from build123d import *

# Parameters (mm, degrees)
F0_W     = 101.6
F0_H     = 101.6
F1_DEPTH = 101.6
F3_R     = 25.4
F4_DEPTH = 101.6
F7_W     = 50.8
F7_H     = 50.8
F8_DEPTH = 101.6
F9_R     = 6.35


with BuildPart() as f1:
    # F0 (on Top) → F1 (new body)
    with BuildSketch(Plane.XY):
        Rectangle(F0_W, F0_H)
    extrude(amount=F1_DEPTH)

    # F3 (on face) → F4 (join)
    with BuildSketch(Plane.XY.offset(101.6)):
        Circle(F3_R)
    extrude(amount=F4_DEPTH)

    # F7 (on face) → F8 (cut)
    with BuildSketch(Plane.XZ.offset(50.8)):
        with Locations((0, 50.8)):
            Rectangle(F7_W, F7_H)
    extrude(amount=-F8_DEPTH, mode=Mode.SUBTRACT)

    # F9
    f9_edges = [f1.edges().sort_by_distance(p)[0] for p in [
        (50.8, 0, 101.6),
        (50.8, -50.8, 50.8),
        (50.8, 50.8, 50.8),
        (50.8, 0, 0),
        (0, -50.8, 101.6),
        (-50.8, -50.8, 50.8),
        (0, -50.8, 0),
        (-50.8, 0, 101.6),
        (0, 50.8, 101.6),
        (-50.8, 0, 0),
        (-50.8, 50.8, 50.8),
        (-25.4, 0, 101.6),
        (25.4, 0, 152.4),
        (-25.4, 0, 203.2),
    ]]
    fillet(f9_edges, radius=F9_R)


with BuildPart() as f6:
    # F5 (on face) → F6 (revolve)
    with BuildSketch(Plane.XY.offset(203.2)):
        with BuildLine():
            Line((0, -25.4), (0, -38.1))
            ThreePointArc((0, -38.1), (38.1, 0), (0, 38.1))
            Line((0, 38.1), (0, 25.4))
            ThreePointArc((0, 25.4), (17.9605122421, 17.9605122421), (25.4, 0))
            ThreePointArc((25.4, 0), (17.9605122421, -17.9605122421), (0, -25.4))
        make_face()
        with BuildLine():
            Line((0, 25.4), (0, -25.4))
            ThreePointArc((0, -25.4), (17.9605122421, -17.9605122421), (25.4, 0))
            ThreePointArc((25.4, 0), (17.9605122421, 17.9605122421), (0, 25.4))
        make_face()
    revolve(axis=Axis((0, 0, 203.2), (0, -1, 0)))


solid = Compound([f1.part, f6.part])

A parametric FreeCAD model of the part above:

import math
import FreeCAD as App
import Part
import Sketcher

V = App.Vector
Q = App.Units.Quantity


def edges_at(feature, points):
    """Names of the edges that pass closest to the given points."""
    edges = feature.Shape.Edges
    near = lambda p: min(range(len(edges)), key=lambda i: edges[i].distToShape(Part.Vertex(*p))[0])
    return sorted({f"Edge{near(p) + 1}" for p in points})


def add_polygon(sketch, points):
    """Adds a closed chain of lines whose ends are joined by coincident constraints."""
    first, n = sketch.GeometryCount, len(points)
    for a, b in zip(points, points[1:] + points[:1]):
        sketch.addGeometry(Part.LineSegment(App.Vector(*a, 0), App.Vector(*b, 0)), False)
    for i in range(n):
        sketch.addConstraint(Sketcher.Constraint("Coincident", first + i, 2, first + (i + 1) % n, 1))

doc = App.newDocument("Part")
body = doc.addObject("PartDesign::Body", "Body")

# Sketch on XY plane
sketch1 = doc.addObject("Sketcher::SketchObject", "Sketch")
body.addObject(sketch1)
sketch1.AttachmentSupport = (doc.XY_Plane, [""])
sketch1.MapMode = "FlatFace"
add_polygon(sketch1, [(-51, 51), (-51, -51), (51, -51), (51, 51)])  # lines 0-3
sketch1.addConstraint([
    Sketcher.Constraint("Vertical", 0),
    Sketcher.Constraint("Horizontal", 1),
    Sketcher.Constraint("Vertical", 2),
    Sketcher.Constraint("Horizontal", 3),
    Sketcher.Constraint("Symmetric", 0, 2, 2, 2, -1, 1),
    Sketcher.Constraint("Equal", 3, 0),
    Sketcher.Constraint("DistanceX", 1, 1, 1, 2, Q("4 in")),
])
pad1 = doc.addObject("PartDesign::Pad", "Pad")
body.addObject(pad1)
pad1.Profile = sketch1
pad1.Length = Q("4 in")

# Sketch on XY plane
sketch2 = doc.addObject("Sketcher::SketchObject", "Sketch001")
body.addObject(sketch2)
sketch2.AttachmentSupport = (doc.XY_Plane, [""])
sketch2.MapMode = "FlatFace"
sketch2.AttachmentOffset = App.Placement(V(0, 0, 4 * 25.4), App.Rotation())
sketch2.addGeometry(Part.Circle(V(0, 0, 0), V(0, 0, 1), 25), False)
sketch2.addConstraint([
    Sketcher.Constraint("Coincident", 0, 3, -1, 1),
    Sketcher.Constraint("Diameter", 0, Q("2 in")),
])
pad2 = doc.addObject("PartDesign::Pad", "Pad001")
body.addObject(pad2)
pad2.Profile = sketch2
pad2.Length = Q("4 in")

# Sketch on XZ plane
sketch3 = doc.addObject("Sketcher::SketchObject", "Sketch002")
body.addObject(sketch3)
sketch3.AttachmentSupport = (doc.XZ_Plane, [""])
sketch3.MapMode = "FlatFace"
sketch3.AttachmentOffset = App.Placement(V(0, 0, 2 * 25.4), App.Rotation())
add_polygon(sketch3, [(-25, 76), (-25, 25), (25, 25), (25, 76)])  # lines 0-3
sketch3.addConstraint([
    Sketcher.Constraint("Vertical", 0),
    Sketcher.Constraint("Horizontal", 1),
    Sketcher.Constraint("Vertical", 2),
    Sketcher.Constraint("Horizontal", 3),
    Sketcher.Constraint("Equal", 3, 0),
    Sketcher.Constraint("DistanceX", 1, 1, 1, 2, Q("2 in")),
    Sketcher.Constraint("DistanceX", 0, 2, -1, 1, Q("1 in")),
    Sketcher.Constraint("DistanceY", -1, 1, 0, 2, Q("1 in")),
])
pocket1 = doc.addObject("PartDesign::Pocket", "Pocket")
body.addObject(pocket1)
pocket1.Profile = sketch3
pocket1.Length = Q("4 in")
doc.recompute()

fillet = doc.addObject("PartDesign::Fillet", "Fillet")
body.addObject(fillet)
fillet.Base = (pocket1, edges_at(pocket1, [
    (50.8, 0, 101.6),
    (50.8, -50.8, 50.8),
    (50.8, 50.8, 50.8),
    (50.8, 0, 0),
    (0, -50.8, 101.6),
    (-50.8, -50.8, 50.8),
    (0, -50.8, 0),
    (-50.8, 0, 101.6),
    (0, 50.8, 101.6),
    (-50.8, 0, 0),
    (-50.8, 50.8, 50.8),
    (-25.4, 0, 101.6),
    (25.4, 0, 152.4),
    (-25.4, 0, 203.2),
]))
fillet.Radius = Q("0.25 in")
body2 = doc.addObject("PartDesign::Body", "Body001")

# Sketch on XY plane
sketch4 = doc.addObject("Sketcher::SketchObject", "Sketch003")
body2.addObject(sketch4)
sketch4.AttachmentSupport = (doc.getObject("XY_Plane001"), [""])
sketch4.MapMode = "FlatFace"
sketch4.AttachmentOffset = App.Placement(V(0, 0, 8 * 25.4), App.Rotation())
sketch4.addGeometry([
    Part.ArcOfCircle(Part.Circle(V(0, 0, 0), V(0, 0, 1), 38), math.radians(-90), math.radians(90)),
    Part.LineSegment(V(0, 38, 0), V(0, -38, 0)),
], False)
sketch4.addConstraint([
    Sketcher.Constraint("Coincident", 0, 1, 1, 2),
    Sketcher.Constraint("Coincident", 1, 1, 0, 2),
    Sketcher.Constraint("Vertical", 1),
    Sketcher.Constraint("Coincident", 0, 3, -1, 1),
    Sketcher.Constraint("PointOnObject", 0, 1, -2),
    Sketcher.Constraint("Radius", 0, Q("1.5 in")),
])
revolution = doc.addObject("PartDesign::Revolution", "Revolution")
body2.addObject(revolution)
revolution.Profile = sketch4
revolution.ReferenceAxis = (sketch4, ["V_Axis"])
revolution.Angle = 360

doc.recompute()
